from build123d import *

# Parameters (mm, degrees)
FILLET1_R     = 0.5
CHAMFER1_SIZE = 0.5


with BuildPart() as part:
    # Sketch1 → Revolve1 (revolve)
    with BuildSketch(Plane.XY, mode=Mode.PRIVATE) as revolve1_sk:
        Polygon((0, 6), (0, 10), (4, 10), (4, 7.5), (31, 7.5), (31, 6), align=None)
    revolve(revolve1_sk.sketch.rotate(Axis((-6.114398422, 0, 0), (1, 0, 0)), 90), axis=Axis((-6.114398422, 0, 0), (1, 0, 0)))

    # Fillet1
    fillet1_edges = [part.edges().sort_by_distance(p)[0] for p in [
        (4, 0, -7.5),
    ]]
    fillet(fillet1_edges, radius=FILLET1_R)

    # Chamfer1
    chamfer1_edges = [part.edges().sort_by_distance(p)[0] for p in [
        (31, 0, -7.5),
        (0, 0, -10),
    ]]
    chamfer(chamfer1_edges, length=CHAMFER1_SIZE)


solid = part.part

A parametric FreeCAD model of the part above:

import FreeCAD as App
import Part
import Sketcher


def edges_at(feature, points):
    """Names of the edges that pass closest to the given points."""
    edges = feature.Shape.Edges
    near = lambda p: min(range(len(edges)), key=lambda i: edges[i].distToShape(Part.Vertex(*p))[0])
    return sorted({f"Edge{near(p) + 1}" for p in points})


def add_polygon(sketch, points):
    """Adds a closed chain of lines whose ends are joined by coincident constraints."""
    first, n = sketch.GeometryCount, len(points)
    for a, b in zip(points, points[1:] + points[:1]):
        sketch.addGeometry(Part.LineSegment(App.Vector(*a, 0), App.Vector(*b, 0)), False)
    for i in range(n):
        sketch.addConstraint(Sketcher.Constraint("Coincident", first + i, 2, first + (i + 1) % n, 1))

doc = App.newDocument("Part")
body = doc.addObject("PartDesign::Body", "Body")

# Sketch on XY plane
sketch1 = body.newObject("Sketcher::SketchObject", "Sketch")
sketch1.AttachmentSupport = (doc.getObject("XY_Plane"), [""])
sketch1.MapMode = "FlatFace"
add_polygon(sketch1, [(0, 10), (0, 6), (31, 6), (31, 7.5), (4, 7.5), (4, 10)])  # lines 0-5
sketch1.addConstraint(Sketcher.Constraint("Vertical", 0))
sketch1.addConstraint(Sketcher.Constraint("Horizontal", 1))
sketch1.addConstraint(Sketcher.Constraint("Vertical", 2))
sketch1.addConstraint(Sketcher.Constraint("Horizontal", 3))
sketch1.addConstraint(Sketcher.Constraint("Vertical", 4))
sketch1.addConstraint(Sketcher.Constraint("Horizontal", 5))
sketch1.addConstraint(Sketcher.Constraint("PointOnObject", 0, 2, -2))
sketch1.addConstraint(Sketcher.Constraint("Equal", 5, 0))
sketch1.addConstraint(Sketcher.Constraint("DistanceX", 1, 1, 1, 2, 31.0))
sketch1.addConstraint(Sketcher.Constraint("DistanceX", 3, 2, 3, 1, 27.0))
sketch1.addConstraint(Sketcher.Constraint("DistanceY", 2, 1, 2, 2, 1.5))
sketch1.addConstraint(Sketcher.Constraint("DistanceY", -1, 1, 0, 2, 6.0))
revolution = body.newObject("PartDesign::Revolution", "Revolution")
revolution.Profile = sketch1
revolution.ReferenceAxis = (sketch1, ["H_Axis"])
revolution.Angle = 360
doc.recompute()

fillet = body.newObject("PartDesign::Fillet", "Fillet")
fillet.Base = (revolution, edges_at(revolution, [(4, 0, -7.5)]))
fillet.Radius = 0.5
doc.recompute()

chamfer = body.newObject("PartDesign::Chamfer", "Chamfer")
chamfer.Base = (fillet, edges_at(fillet, [(31, 0, -7.5), (0, 0, -10)]))
chamfer.Size = 0.5

doc.recompute()
